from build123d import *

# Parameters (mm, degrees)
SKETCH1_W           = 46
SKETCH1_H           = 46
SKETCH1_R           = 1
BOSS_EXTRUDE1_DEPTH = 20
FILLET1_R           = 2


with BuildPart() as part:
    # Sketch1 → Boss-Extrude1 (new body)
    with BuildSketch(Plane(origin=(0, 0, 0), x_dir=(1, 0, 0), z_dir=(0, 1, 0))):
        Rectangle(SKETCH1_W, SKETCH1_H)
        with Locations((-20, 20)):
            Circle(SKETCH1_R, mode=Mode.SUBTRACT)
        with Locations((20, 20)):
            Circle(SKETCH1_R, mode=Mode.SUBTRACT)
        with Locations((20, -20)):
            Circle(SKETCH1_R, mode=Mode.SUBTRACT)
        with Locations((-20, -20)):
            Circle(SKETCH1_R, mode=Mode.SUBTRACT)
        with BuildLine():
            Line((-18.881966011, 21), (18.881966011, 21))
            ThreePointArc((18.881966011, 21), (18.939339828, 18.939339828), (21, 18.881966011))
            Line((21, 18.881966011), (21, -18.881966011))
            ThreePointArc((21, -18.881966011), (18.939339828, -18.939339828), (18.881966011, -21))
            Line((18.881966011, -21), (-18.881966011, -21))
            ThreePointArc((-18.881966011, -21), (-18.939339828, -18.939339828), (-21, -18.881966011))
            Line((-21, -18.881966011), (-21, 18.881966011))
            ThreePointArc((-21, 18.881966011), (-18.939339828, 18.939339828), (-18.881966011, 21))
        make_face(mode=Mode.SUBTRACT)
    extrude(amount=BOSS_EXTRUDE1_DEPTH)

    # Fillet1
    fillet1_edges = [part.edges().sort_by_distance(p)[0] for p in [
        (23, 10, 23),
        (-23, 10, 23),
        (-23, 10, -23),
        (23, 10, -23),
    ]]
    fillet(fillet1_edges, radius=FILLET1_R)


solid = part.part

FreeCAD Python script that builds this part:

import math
import FreeCAD as App
import Part
import Sketcher

V = App.Vector
Q = App.Units.Quantity


def edges_at(feature, points):
    """Names of the edges that pass closest to the given points."""
    edges = feature.Shape.Edges
    near = lambda p: min(range(len(edges)), key=lambda i: edges[i].distToShape(Part.Vertex(*p))[0])
    return sorted({f"Edge{near(p) + 1}" for p in points})

doc = App.newDocument("Part")
params = doc.addObject("Spreadsheet::Sheet", "Params")
for row, (alias, value) in enumerate([
    ("sketch1_diameter", "2 mm"),
    ("sketch1_radius", "1.5 mm"),
    ("sketch1_width", "46 mm"),
    ("pad1_length", "20 mm"),
    ("fillet_radius", "2 mm"),
], start=1):
    params.set(f"A{row}", alias)
    params.set(f"B{row}", "=" + value)
    params.setAlias(f"B{row}", alias)

body = doc.addObject("PartDesign::Body", "Body")

sketch1 = body.newObject("Sketcher::SketchObject", "Sketch")
sketch1.AttachmentSupport = (doc.getObject("XZ_Plane"), [""])
sketch1.MapMode = "FlatFace"
sketch1.addGeometry([
    Part.LineSegment(V(-23, -23, 0), V(-23, 23, 0)),
    Part.LineSegment(V(-23, 23, 0), V(23, 23, 0)),
    Part.LineSegment(V(23, 23, 0), V(23, -23, 0)),
    Part.LineSegment(V(23, -23, 0), V(-23, -23, 0)),
    Part.Circle(V(-20, 20, 0), V(0, 0, 1), 1),
    Part.Circle(V(20, 20, 0), V(0, 0, 1), 1),
    Part.Circle(V(-20, -20, 0), V(0, 0, 1), 1),
    Part.ArcOfCircle(Part.Circle(V(-20, -20, 0), V(0, 0, 1), 1.5), math.radians(-42), math.radians(132)),
    Part.LineSegment(V(-18.9, -21, 0), V(18.9, -21, 0)),
    Part.ArcOfCircle(Part.Circle(V(20, -20, 0), V(0, 0, 1), 1.5), math.radians(48), math.radians(222)),
    Part.LineSegment(V(21, -18.9, 0), V(21, 18.9, 0)),
    Part.ArcOfCircle(Part.Circle(V(20, 20, 0), V(0, 0, 1), 1.5), math.radians(138), math.radians(312)),
    Part.LineSegment(V(18.9, 21, 0), V(-18.9, 21, 0)),
    Part.ArcOfCircle(Part.Circle(V(-20, 20, 0), V(0, 0, 1), 1.5), math.radians(-132), math.radians(42)),
    Part.LineSegment(V(-21, 18.9, 0), V(-21, -18.9, 0)),
    Part.Circle(V(20, -20, 0), V(0, 0, 1), 1),
], False)
sketch1.addConstraint([
    Sketcher.Constraint("Coincident", 0, 2, 1, 1),
    Sketcher.Constraint("Coincident", 1, 2, 2, 1),
    Sketcher.Constraint("Coincident", 2, 2, 3, 1),
    Sketcher.Constraint("Coincident", 3, 2, 0, 1),
    Sketcher.Constraint("Coincident", 7, 1, 8, 1),
    Sketcher.Constraint("Coincident", 8, 2, 9, 2),
    Sketcher.Constraint("Coincident", 9, 1, 10, 1),
    Sketcher.Constraint("Coincident", 10, 2, 11, 2),
    Sketcher.Constraint("Coincident", 11, 1, 12, 1),
    Sketcher.Constraint("Coincident", 12, 2, 13, 2),
    Sketcher.Constraint("Coincident", 13, 1, 14, 1),
    Sketcher.Constraint("Coincident", 14, 2, 7, 2),
    Sketcher.Constraint("Vertical", 0),
    Sketcher.Constraint("Horizontal", 1),
    Sketcher.Constraint("Vertical", 2),
    Sketcher.Constraint("Horizontal", 3),
    Sketcher.Constraint("Horizontal", 8),
    Sketcher.Constraint("Vertical", 10),
    Sketcher.Constraint("Horizontal", 12),
    Sketcher.Constraint("Vertical", 14),
    Sketcher.Constraint("Coincident", 7, 3, 6, 3),
    Sketcher.Constraint("Coincident", 11, 3, 5, 3),
    Sketcher.Constraint("Coincident", 13, 3, 4, 3),
    Sketcher.Constraint("Coincident", 15, 3, 9, 3),
    Sketcher.Constraint("Equal", 4, 5),
    Sketcher.Constraint("Equal", 5, 6),
    Sketcher.Constraint("Equal", 7, 9),
    Sketcher.Constraint("Equal", 9, 11),
    Sketcher.Constraint("Equal", 11, 13),
    Sketcher.Constraint("Equal", 6, 15),
    Sketcher.Constraint("Symmetric", 5, 3, 6, 3, -1, 1),
    Sketcher.Constraint("Symmetric", 4, 3, 9, 3, -1, 1),
    Sketcher.Constraint("Symmetric", 0, 2, 2, 2, -1, 1),
    Sketcher.Constraint("Symmetric", 4, 3, 5, 3, -2),
    Sketcher.Constraint("Horizontal", 10, 2, 13, 1),
    Sketcher.Constraint("Vertical", 8, 2, 11, 1),
    Sketcher.Constraint("Equal", 3, 0),
    Sketcher.Constraint("Equal", 12, 10),
    Sketcher.Constraint("Diameter", 4, Q("2 mm")),
    Sketcher.Constraint("Radius", 7, Q("1.5 mm")),
    Sketcher.Constraint("DistanceX", 1, 1, 1, 2, Q("46 mm")),
    Sketcher.Constraint("DistanceX", 4, 3, -1, 1, Q("20 mm")),
    Sketcher.Constraint("DistanceY", -1, 1, 4, 3, Q("20 mm")),
    Sketcher.Constraint("DistanceY", 7, 1, -1, 1, Q("21 mm")),
])
sketch1.setExpression("Constraints[38]", "Params.sketch1_diameter")
sketch1.setExpression("Constraints[39]", "Params.sketch1_radius")
sketch1.setExpression("Constraints[40]", "Params.sketch1_width")
pad1 = body.newObject("PartDesign::Pad", "Pad")
pad1.Profile = sketch1
pad1.setExpression("Length", "Params.pad1_length")
pad1.Reversed = True
doc.recompute()

fillet = body.newObject("PartDesign::Fillet", "Fillet")
fillet.Base = (pad1, edges_at(pad1, [
    (23, 10, 23),
    (-23, 10, 23),
    (-23, 10, -23),
    (23, 10, -23),
]))
fillet.setExpression("Radius", "Params.fillet_radius")

doc.recompute()
